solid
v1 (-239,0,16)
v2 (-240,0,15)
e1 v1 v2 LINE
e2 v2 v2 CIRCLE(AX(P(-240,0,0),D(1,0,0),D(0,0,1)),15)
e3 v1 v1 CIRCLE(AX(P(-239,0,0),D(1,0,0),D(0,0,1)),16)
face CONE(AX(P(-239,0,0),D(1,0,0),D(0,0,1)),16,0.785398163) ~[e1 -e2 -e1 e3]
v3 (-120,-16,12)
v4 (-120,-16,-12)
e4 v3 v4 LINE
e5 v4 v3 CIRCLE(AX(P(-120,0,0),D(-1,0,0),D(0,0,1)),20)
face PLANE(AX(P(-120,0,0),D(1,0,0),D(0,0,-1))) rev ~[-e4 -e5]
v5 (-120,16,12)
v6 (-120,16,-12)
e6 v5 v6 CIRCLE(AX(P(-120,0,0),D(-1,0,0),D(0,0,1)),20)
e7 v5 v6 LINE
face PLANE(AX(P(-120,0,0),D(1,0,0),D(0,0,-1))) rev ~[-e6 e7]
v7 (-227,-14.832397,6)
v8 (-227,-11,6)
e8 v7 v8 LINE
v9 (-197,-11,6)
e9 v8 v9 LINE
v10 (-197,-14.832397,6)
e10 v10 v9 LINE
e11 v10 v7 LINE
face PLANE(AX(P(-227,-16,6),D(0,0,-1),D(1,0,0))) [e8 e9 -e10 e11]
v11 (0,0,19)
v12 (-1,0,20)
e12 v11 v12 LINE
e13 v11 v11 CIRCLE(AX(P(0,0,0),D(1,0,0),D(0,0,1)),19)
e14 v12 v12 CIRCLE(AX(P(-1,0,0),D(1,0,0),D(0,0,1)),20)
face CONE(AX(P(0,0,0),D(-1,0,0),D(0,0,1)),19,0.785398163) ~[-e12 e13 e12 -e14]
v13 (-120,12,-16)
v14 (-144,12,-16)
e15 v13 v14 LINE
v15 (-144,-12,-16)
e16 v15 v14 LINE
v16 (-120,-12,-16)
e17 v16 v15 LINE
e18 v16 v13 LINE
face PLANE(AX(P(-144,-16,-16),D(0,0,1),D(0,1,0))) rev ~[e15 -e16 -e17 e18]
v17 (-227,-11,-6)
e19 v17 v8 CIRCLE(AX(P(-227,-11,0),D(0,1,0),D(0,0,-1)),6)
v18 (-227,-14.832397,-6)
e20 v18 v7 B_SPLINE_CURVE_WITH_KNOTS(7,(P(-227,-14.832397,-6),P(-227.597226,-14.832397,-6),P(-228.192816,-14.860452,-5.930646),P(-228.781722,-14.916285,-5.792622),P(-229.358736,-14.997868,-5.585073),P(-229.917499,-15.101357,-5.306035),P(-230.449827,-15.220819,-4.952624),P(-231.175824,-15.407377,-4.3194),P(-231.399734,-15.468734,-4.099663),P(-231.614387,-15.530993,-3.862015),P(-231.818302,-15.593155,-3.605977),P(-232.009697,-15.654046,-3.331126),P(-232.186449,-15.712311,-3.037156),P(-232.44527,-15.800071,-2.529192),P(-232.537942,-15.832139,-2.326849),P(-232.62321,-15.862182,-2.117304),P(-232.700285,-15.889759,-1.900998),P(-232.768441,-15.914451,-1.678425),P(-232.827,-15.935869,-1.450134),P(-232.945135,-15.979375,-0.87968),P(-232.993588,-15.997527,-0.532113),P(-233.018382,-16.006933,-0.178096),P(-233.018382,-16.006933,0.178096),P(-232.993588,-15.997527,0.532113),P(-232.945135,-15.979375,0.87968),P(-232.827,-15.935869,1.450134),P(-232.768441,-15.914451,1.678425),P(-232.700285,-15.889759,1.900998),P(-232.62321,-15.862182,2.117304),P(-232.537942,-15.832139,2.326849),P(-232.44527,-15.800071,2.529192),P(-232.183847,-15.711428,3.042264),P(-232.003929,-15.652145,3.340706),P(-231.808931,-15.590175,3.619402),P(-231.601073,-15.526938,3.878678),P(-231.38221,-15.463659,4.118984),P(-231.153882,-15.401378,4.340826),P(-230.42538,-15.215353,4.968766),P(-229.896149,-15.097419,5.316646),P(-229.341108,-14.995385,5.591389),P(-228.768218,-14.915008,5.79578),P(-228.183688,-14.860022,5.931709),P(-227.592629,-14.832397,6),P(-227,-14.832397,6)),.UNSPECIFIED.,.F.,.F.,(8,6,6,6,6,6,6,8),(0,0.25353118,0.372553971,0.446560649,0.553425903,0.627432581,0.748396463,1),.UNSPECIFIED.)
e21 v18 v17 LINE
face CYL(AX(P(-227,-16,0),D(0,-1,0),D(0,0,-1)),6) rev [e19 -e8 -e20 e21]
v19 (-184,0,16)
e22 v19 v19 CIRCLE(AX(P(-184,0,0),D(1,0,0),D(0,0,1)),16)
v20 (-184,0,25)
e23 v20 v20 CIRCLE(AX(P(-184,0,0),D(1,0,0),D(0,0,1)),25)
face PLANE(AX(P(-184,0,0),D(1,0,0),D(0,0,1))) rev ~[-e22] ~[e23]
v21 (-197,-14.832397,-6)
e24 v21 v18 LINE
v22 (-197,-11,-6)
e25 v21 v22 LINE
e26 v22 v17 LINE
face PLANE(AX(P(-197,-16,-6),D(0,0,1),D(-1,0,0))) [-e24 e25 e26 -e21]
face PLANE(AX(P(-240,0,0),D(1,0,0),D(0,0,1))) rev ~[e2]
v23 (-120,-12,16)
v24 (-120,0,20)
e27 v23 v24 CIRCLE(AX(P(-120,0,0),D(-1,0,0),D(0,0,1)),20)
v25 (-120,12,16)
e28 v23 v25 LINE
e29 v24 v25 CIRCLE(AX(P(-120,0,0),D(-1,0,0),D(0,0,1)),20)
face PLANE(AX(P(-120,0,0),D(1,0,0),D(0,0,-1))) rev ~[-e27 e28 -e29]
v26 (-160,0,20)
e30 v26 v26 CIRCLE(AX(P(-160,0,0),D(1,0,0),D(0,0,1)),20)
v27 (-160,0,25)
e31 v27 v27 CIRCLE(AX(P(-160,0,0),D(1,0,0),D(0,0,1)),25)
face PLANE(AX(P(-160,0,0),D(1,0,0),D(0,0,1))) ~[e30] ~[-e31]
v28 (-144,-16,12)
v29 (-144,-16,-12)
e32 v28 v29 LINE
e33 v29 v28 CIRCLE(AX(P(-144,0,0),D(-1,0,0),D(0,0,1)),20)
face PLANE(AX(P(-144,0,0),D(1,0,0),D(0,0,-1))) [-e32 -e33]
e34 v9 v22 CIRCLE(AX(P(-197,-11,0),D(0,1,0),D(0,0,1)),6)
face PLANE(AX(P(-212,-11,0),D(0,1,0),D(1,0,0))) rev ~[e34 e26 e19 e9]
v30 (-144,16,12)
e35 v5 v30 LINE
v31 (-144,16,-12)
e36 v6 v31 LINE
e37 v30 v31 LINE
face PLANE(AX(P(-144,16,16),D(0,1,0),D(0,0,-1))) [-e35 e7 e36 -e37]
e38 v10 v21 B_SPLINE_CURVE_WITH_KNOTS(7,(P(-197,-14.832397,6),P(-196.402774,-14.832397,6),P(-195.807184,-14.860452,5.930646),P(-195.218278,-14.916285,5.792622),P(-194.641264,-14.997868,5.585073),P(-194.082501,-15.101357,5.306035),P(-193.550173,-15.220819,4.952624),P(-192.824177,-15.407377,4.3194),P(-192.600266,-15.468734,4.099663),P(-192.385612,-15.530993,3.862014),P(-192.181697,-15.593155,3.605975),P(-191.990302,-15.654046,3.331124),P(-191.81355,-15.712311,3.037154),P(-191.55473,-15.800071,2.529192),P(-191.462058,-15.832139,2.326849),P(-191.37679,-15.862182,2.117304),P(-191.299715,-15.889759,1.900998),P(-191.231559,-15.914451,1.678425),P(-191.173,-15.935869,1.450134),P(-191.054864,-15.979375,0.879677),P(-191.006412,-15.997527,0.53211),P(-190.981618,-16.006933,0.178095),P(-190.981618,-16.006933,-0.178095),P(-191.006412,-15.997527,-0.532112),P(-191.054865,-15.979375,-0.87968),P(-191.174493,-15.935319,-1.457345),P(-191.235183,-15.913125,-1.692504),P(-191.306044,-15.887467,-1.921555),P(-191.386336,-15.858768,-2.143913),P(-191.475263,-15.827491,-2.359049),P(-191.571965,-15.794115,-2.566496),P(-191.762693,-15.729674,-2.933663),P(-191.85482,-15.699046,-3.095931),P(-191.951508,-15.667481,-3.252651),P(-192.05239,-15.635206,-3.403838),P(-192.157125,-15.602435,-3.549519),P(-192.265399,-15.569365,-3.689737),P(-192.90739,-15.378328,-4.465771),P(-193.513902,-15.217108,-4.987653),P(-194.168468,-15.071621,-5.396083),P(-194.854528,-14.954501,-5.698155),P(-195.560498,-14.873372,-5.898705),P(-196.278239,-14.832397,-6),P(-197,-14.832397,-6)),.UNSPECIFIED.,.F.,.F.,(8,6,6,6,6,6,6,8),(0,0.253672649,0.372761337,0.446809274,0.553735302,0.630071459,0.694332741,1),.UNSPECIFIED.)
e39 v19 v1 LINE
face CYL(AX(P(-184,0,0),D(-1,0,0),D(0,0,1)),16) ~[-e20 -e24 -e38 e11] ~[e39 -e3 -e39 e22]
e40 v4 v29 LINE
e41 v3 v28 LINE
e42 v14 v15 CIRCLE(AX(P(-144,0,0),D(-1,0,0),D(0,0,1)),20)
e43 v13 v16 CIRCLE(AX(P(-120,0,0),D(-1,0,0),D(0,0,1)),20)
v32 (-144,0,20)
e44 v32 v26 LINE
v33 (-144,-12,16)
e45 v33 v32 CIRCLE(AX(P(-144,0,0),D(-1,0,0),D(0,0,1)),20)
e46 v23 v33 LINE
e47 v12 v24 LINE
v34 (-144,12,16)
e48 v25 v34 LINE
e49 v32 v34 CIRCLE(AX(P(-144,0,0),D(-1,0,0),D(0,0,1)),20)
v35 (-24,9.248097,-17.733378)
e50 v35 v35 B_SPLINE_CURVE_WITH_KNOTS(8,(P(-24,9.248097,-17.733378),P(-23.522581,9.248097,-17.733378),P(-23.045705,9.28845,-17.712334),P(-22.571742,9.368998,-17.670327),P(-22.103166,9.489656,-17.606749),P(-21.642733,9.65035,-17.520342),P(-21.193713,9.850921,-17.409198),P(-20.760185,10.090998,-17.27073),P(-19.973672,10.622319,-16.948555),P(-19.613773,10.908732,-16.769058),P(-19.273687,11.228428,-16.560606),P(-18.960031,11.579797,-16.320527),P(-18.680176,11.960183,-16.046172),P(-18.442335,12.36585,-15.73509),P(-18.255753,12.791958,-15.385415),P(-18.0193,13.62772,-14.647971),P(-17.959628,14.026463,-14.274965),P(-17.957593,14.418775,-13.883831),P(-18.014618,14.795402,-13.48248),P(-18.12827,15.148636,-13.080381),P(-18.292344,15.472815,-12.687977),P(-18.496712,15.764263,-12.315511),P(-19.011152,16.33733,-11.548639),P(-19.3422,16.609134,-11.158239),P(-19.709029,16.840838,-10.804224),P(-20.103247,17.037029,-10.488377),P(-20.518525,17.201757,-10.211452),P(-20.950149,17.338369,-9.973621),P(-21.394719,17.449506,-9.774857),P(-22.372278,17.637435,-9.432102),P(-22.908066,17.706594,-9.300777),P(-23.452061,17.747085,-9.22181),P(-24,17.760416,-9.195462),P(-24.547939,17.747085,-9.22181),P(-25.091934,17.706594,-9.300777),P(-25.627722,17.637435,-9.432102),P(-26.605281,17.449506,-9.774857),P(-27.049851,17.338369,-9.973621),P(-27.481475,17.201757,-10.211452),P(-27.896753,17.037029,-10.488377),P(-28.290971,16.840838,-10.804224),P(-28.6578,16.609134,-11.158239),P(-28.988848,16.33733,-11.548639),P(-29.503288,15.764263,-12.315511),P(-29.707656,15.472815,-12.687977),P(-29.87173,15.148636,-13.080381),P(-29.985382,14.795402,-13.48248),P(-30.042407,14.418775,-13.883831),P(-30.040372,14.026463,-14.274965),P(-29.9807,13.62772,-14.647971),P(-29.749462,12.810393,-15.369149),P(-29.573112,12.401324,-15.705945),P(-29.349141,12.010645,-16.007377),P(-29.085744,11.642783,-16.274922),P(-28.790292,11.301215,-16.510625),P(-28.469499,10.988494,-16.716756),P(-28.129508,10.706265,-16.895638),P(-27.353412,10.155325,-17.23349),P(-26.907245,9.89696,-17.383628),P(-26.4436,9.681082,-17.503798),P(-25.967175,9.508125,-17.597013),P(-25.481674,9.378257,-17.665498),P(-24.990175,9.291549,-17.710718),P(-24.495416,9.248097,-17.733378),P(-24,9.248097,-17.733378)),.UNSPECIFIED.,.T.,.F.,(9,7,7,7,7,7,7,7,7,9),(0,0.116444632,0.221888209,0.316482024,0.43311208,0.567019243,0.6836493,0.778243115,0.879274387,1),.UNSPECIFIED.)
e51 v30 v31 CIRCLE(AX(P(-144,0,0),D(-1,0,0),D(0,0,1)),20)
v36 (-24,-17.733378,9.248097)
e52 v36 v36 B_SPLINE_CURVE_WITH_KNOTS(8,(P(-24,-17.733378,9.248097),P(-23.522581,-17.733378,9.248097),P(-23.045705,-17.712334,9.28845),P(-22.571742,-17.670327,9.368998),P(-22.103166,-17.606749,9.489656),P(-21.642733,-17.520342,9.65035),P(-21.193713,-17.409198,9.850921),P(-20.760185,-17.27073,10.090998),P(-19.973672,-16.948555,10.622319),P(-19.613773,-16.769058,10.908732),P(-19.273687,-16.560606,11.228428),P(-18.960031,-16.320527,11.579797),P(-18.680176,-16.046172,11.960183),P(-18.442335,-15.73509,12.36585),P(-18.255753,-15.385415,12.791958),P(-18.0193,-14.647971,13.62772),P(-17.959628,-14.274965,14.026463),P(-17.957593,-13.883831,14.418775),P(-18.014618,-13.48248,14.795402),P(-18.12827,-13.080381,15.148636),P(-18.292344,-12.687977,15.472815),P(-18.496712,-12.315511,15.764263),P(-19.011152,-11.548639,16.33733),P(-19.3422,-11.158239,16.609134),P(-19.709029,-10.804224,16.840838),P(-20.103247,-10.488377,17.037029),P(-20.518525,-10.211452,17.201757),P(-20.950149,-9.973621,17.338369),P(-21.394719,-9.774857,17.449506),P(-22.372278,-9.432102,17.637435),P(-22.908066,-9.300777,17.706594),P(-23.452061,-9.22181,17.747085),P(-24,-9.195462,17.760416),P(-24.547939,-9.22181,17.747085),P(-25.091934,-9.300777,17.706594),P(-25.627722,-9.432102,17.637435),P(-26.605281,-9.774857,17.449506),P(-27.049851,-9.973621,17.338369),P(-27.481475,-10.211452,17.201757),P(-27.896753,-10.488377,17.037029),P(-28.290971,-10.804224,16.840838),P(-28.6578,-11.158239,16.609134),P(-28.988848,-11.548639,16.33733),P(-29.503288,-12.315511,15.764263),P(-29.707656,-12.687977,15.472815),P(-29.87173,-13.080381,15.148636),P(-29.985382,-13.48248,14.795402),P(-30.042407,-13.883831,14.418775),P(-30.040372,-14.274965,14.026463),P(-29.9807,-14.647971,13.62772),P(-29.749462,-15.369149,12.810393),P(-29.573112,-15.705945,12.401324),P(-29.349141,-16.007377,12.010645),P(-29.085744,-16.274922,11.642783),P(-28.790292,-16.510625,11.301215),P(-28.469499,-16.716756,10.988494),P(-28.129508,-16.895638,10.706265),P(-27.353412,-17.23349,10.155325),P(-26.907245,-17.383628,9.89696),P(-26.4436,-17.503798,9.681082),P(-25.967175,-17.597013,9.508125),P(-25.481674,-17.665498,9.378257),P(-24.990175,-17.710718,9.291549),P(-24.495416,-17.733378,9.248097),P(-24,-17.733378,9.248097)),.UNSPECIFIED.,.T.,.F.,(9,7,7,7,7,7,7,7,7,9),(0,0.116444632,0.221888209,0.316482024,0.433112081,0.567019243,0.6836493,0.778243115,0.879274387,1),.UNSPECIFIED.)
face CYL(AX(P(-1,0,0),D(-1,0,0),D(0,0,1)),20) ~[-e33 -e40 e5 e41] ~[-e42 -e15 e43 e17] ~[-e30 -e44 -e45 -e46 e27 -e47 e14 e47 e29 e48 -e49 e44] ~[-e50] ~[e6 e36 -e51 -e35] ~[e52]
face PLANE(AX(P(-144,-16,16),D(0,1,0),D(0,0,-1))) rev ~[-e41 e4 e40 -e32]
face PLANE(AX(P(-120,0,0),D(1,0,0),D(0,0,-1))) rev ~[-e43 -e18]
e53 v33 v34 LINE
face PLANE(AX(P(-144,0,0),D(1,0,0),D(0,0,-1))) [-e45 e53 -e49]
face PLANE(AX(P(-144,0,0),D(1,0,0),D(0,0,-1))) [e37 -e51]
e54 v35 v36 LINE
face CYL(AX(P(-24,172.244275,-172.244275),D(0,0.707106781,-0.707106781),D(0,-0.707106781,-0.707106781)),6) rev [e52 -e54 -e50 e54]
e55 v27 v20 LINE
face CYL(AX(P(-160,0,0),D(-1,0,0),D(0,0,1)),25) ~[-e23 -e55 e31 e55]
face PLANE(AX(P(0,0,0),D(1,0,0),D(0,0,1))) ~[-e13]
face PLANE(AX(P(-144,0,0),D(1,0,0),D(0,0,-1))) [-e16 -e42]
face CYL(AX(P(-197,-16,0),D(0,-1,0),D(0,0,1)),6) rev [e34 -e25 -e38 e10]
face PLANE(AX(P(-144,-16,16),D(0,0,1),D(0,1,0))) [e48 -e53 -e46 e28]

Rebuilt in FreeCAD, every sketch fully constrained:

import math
import FreeCAD as App
import Part
import Sketcher
from FreeCAD import Vector

doc = App.newDocument("Part")
params = doc.addObject("Spreadsheet::Sheet", "Params")
for row, (alias, value) in enumerate([
    ("sketch1_width", "159 mm"),
    ("sketch1_width2", "24 mm"),
    ("sketch1_width3", "55 mm"),
    ("sketch1_width4", "240 mm"),
    ("sketch1_height", "19 mm"),
    ("revolution_angle", "360 deg"),
    ("sketch2_width", "32 mm"),
    ("sketch2_width2", "102.04 mm"),
    ("pocket1_length", "24 mm"),
    ("sketch3_radius", "6 mm"),
    ("sketch3_width", "30 mm"),
    ("pocket2_length", "5 mm"),
    ("sketch4_diameter", "12 mm"),
], start=1):
    params.set(f"A{row}", alias)
    params.set(f"B{row}", "=" + value)
    params.setAlias(f"B{row}", alias)

body = doc.addObject("PartDesign::Body", "Body")

sketch1 = body.newObject("Sketcher::SketchObject", "Sketch")
sketch1.AttachmentSupport = (doc.getObject("XY_Plane"), [""])
sketch1.MapMode = "FlatFace"
sketch1.addGeometry([
    Part.LineSegment(Vector(0, 0, 0), Vector(0, 19, 0)),
    Part.LineSegment(Vector(0, 19, 0), Vector(-1, 20, 0)),
    Part.LineSegment(Vector(-1, 20, 0), Vector(-160, 20, 0)),
    Part.LineSegment(Vector(-160, 20, 0), Vector(-160, 25, 0)),
    Part.LineSegment(Vector(-160, 25, 0), Vector(-184, 25, 0)),
    Part.LineSegment(Vector(-184, 25, 0), Vector(-184, 16, 0)),
    Part.LineSegment(Vector(-184, 16, 0), Vector(-239, 16, 0)),
    Part.LineSegment(Vector(-239, 16, 0), Vector(-240, 15, 0)),
    Part.LineSegment(Vector(-240, 15, 0), Vector(-240, 0, 0)),
    Part.LineSegment(Vector(-240, 0, 0), Vector(0, 0, 0)),
], False)
sketch1.addConstraint([
    Sketcher.Constraint("Coincident", 0, 2, 1, 1),
    Sketcher.Constraint("Coincident", 1, 2, 2, 1),
    Sketcher.Constraint("Coincident", 2, 2, 3, 1),
    Sketcher.Constraint("Coincident", 3, 2, 4, 1),
    Sketcher.Constraint("Coincident", 4, 2, 5, 1),
    Sketcher.Constraint("Coincident", 5, 2, 6, 1),
    Sketcher.Constraint("Coincident", 6, 2, 7, 1),
    Sketcher.Constraint("Coincident", 7, 2, 8, 1),
    Sketcher.Constraint("Coincident", 8, 2, 9, 1),
    Sketcher.Constraint("Coincident", 9, 2, 0, 1),
    Sketcher.Constraint("Vertical", 0),
    Sketcher.Constraint("Horizontal", 2),
    Sketcher.Constraint("Vertical", 3),
    Sketcher.Constraint("Horizontal", 4),
    Sketcher.Constraint("Vertical", 5),
    Sketcher.Constraint("Horizontal", 6),
    Sketcher.Constraint("Vertical", 8),
    Sketcher.Constraint("Horizontal", 9),
    Sketcher.Constraint("Coincident", 9, 2, -1, 1),
    Sketcher.Constraint("Perpendicular", 1, 7),
    Sketcher.Constraint("Equal", 1, 7),
    Sketcher.Constraint("DistanceX", 2, 2, 2, 1, 159.0),
    Sketcher.Constraint("DistanceX", 4, 2, 4, 1, 24.0),
    Sketcher.Constraint("DistanceX", 6, 2, 6, 1, 55.0),
    Sketcher.Constraint("DistanceX", 9, 1, 9, 2, 240.0),
    Sketcher.Constraint("DistanceY", 0, 1, 0, 2, 19.0),
    Sketcher.Constraint("DistanceY", 3, 1, 3, 2, 5.0),
    Sketcher.Constraint("DistanceY", 5, 2, 5, 1, 9.0),
    Sketcher.Constraint("DistanceY", 8, 2, 8, 1, 15.0),
])
sketch1.setExpression("Constraints[21]", "Params.sketch1_width")
sketch1.setExpression("Constraints[22]", "Params.sketch1_width2")
sketch1.setExpression("Constraints[23]", "Params.sketch1_width3")
sketch1.setExpression("Constraints[24]", "Params.sketch1_width4")
sketch1.setExpression("Constraints[25]", "Params.sketch1_height")
revolution = body.newObject("PartDesign::Revolution", "Revolution")
revolution.Profile = sketch1
revolution.ReferenceAxis = (sketch1, ["H_Axis"])
revolution.setExpression("Angle", "Params.revolution_angle")

sketch2 = body.newObject("Sketcher::SketchObject", "Sketch001")
sketch2.AttachmentSupport = (doc.getObject("YZ_Plane"), [""])
sketch2.MapMode = "FlatFace"
sketch2.AttachmentOffset = App.Placement(Vector(0, 0, -144), App.Rotation())
sketch2.addGeometry([
    Part.LineSegment(Vector(51.02, 51.02, 0), Vector(-51.02, 51.02, 0)),
    Part.LineSegment(Vector(-51.02, 51.02, 0), Vector(-51.02, -51.02, 0)),
    Part.LineSegment(Vector(-51.02, -51.02, 0), Vector(51.02, -51.02, 0)),
    Part.LineSegment(Vector(51.02, -51.02, 0), Vector(51.02, 51.02, 0)),
    Part.LineSegment(Vector(-16, -16, 0), Vector(-16, 16, 0)),
    Part.LineSegment(Vector(-16, 16, 0), Vector(16, 16, 0)),
    Part.LineSegment(Vector(16, 16, 0), Vector(16, -16, 0)),
    Part.LineSegment(Vector(16, -16, 0), Vector(-16, -16, 0)),
], False)
sketch2.addConstraint([
    Sketcher.Constraint("Coincident", 0, 2, 1, 1),
    Sketcher.Constraint("Coincident", 1, 2, 2, 1),
    Sketcher.Constraint("Coincident", 2, 2, 3, 1),
    Sketcher.Constraint("Coincident", 3, 2, 0, 1),
    Sketcher.Constraint("Coincident", 4, 2, 5, 1),
    Sketcher.Constraint("Coincident", 5, 2, 6, 1),
    Sketcher.Constraint("Coincident", 6, 2, 7, 1),
    Sketcher.Constraint("Coincident", 7, 2, 4, 1),
    Sketcher.Constraint("Horizontal", 0),
    Sketcher.Constraint("Vertical", 1),
    Sketcher.Constraint("Horizontal", 2),
    Sketcher.Constraint("Vertical", 3),
    Sketcher.Constraint("Vertical", 4),
    Sketcher.Constraint("Horizontal", 5),
    Sketcher.Constraint("Vertical", 6),
    Sketcher.Constraint("Horizontal", 7),
    Sketcher.Constraint("Symmetric", 0, 2, 2, 2, -1, 1),
    Sketcher.Constraint("Symmetric", 4, 2, 6, 2, -1, 1),
    Sketcher.Constraint("Equal", 2, 1),
    Sketcher.Constraint("Equal", 7, 4),
    Sketcher.Constraint("DistanceX", 5, 1, 5, 2, 32.0),
    Sketcher.Constraint("DistanceX", 0, 2, 0, 1, 102.04),
])
sketch2.setExpression("Constraints[20]", "Params.sketch2_width")
sketch2.setExpression("Constraints[21]", "Params.sketch2_width2")
pocket1 = body.newObject("PartDesign::Pocket", "Pocket")
pocket1.Profile = sketch2
pocket1.setExpression("Length", "Params.pocket1_length")
pocket1.Reversed = True

sketch3 = body.newObject("Sketcher::SketchObject", "Sketch002")
sketch3.AttachmentSupport = (doc.getObject("XZ_Plane"), [""])
sketch3.MapMode = "FlatFace"
sketch3.AttachmentOffset = App.Placement(Vector(0, 0, 16), App.Rotation())
sketch3.addGeometry([
    Part.LineSegment(Vector(-197, 6, 0), Vector(-227, 6, 0)),
    Part.ArcOfCircle(Part.Circle(Vector(-227, 0, 0), Vector(0, 0, 1), 6), math.radians(90), math.radians(270)),
    Part.LineSegment(Vector(-227, -6, 0), Vector(-197, -6, 0)),
    Part.ArcOfCircle(Part.Circle(Vector(-197, 0, 0), Vector(0, 0, 1), 6), math.radians(-90), math.radians(90)),
], False)
sketch3.addConstraint([
    Sketcher.Constraint("Tangent", 0, 2, 1, 1),
    Sketcher.Constraint("Tangent", 1, 2, 2, 1),
    Sketcher.Constraint("Tangent", 2, 2, 3, 1),
    Sketcher.Constraint("Tangent", 3, 2, 0, 1),
    Sketcher.Constraint("Horizontal", 0),
    Sketcher.Constraint("Horizontal", 2),
    Sketcher.Constraint("PointOnObject", 1, 3, -1),
    Sketcher.Constraint("Radius", 1, 6.0),
    Sketcher.Constraint("DistanceX", 0, 2, 0, 1, 30.0),
    Sketcher.Constraint("DistanceX", 1, 3, -1, 1, 227.0),
])
sketch3.setExpression("Constraints[7]", "Params.sketch3_radius")
sketch3.setExpression("Constraints[8]", "Params.sketch3_width")
pocket2 = body.newObject("PartDesign::Pocket", "Pocket001")
pocket2.Profile = sketch3
pocket2.setExpression("Length", "Params.pocket2_length")

sketch4 = body.newObject("Sketcher::SketchObject", "Sketch003")
sketch4.Placement = App.Placement(Vector(0, 0, 0), App.Rotation(Vector(-1, 0, 0), Vector(0, -0.707106781, -0.707106781), Vector(0, -0.707106781, 0.707106781), "ZXY"))
sketch4.addGeometry(Part.Circle(Vector(24, 0, 0), Vector(0, 0, 1), 6), False)
sketch4.addConstraint([
    Sketcher.Constraint("PointOnObject", 0, 3, -1),
    Sketcher.Constraint("Diameter", 0, 12.0),
    Sketcher.Constraint("DistanceX", -1, 1, 0, 3, 24.0),
])
sketch4.setExpression("Constraints[1]", "Params.sketch4_diameter")
pocket3 = body.newObject("PartDesign::Pocket", "Pocket002")
pocket3.Profile = sketch4
pocket3.Type = "ThroughAll"
pocket3.Midplane = True

doc.recompute()
